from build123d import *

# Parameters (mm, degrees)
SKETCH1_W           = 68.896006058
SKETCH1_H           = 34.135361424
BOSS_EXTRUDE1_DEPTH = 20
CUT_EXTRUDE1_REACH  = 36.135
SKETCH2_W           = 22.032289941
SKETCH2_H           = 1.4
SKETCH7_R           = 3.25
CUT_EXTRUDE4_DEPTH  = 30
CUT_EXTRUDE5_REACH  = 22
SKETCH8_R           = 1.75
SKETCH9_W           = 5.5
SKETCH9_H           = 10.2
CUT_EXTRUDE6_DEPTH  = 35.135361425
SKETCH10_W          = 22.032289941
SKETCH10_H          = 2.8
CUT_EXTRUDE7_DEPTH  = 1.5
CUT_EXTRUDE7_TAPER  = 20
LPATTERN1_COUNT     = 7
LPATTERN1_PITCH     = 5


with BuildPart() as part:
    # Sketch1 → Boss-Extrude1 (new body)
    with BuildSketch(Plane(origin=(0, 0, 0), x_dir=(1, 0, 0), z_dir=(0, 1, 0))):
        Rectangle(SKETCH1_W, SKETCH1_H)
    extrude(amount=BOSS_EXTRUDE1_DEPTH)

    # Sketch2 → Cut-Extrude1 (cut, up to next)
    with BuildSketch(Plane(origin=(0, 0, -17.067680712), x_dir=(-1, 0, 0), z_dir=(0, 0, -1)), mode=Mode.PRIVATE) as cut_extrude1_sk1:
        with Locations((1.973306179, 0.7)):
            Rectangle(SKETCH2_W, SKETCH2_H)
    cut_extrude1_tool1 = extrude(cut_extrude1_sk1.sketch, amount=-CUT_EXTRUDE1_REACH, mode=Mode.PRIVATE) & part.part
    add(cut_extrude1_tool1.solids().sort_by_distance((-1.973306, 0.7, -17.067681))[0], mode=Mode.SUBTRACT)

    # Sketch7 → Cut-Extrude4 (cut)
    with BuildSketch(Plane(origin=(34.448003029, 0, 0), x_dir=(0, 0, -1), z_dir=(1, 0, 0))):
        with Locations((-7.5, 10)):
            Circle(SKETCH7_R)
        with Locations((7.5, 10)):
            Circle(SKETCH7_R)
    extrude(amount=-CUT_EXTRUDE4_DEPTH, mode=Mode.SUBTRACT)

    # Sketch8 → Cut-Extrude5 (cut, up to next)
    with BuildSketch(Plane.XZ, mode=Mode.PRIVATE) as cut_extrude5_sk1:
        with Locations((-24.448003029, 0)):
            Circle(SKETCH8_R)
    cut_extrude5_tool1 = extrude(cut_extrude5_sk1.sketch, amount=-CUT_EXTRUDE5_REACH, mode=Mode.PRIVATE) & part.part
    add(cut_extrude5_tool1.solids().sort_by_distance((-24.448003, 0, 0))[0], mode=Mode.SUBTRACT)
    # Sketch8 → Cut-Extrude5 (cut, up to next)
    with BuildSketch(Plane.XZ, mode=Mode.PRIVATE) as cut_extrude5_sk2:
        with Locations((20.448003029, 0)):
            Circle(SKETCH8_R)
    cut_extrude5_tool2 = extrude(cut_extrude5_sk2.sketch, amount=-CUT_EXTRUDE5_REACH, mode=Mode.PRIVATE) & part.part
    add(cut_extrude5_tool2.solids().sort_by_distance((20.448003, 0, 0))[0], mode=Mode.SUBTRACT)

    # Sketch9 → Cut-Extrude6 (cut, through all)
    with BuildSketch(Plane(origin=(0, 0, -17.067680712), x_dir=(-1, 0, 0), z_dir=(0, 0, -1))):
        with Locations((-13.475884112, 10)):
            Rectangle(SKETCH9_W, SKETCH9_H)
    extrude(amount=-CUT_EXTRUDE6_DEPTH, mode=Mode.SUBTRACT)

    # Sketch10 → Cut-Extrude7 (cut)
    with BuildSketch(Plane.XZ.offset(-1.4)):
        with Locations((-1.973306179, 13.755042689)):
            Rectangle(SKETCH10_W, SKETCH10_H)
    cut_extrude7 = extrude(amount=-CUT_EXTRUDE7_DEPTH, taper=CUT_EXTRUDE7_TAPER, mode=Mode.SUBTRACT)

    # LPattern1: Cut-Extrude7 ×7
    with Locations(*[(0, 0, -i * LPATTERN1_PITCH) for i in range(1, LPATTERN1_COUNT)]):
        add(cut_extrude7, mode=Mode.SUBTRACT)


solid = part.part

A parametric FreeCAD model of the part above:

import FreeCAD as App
import Part
import Sketcher


def add_polygon(sketch, points):
    """Adds a closed chain of lines whose ends are joined by coincident constraints."""
    first, n = sketch.GeometryCount, len(points)
    for a, b in zip(points, points[1:] + points[:1]):
        sketch.addGeometry(Part.LineSegment(App.Vector(*a, 0), App.Vector(*b, 0)), False)
    for i in range(n):
        sketch.addConstraint(Sketcher.Constraint("Coincident", first + i, 2, first + (i + 1) % n, 1))

doc = App.newDocument("Part")
body = doc.addObject("PartDesign::Body", "Body")

sketch1 = doc.addObject("Sketcher::SketchObject", "Sketch")
body.addObject(sketch1)
sketch1.AttachmentSupport = (doc.XZ_Plane, [""])
sketch1.MapMode = "FlatFace"
add_polygon(sketch1, [(-34, -17), (-34, 17), (34, 17), (34, -17)])
sketch1.addConstraint([
    Sketcher.Constraint("Vertical", 0),
    Sketcher.Constraint("Horizontal", 1),
    Sketcher.Constraint("Vertical", 2),
    Sketcher.Constraint("Horizontal", 3),
    Sketcher.Constraint("Symmetric", 0, 2, 2, 2, -1, 1),
    Sketcher.Constraint("DistanceY", 0, 1, 0, 2, 34.135361),
    Sketcher.Constraint("DistanceX", 1, 1, 1, 2, 68.896006),
])
pad1 = doc.addObject("PartDesign::Pad", "Pad")
body.addObject(pad1)
pad1.Profile = sketch1
pad1.Length = 20
pad1.Reversed = True

sketch2 = doc.addObject("Sketcher::SketchObject", "Sketch001")
body.addObject(sketch2)
sketch2.AttachmentSupport = (doc.XY_Plane, [""])
sketch2.MapMode = "FlatFace"
sketch2.AttachmentOffset = App.Placement(App.Vector(0, 0, -17.067681), App.Rotation())
add_polygon(sketch2, [(9, 1.4), (9, 0), (-13, 0), (-13, 1.4)])
sketch2.addConstraint([
    Sketcher.Constraint("Vertical", 0),
    Sketcher.Constraint("Horizontal", 1),
    Sketcher.Constraint("Vertical", 2),
    Sketcher.Constraint("Horizontal", 3),
    Sketcher.Constraint("PointOnObject", 0, 2, -1),
    Sketcher.Constraint("DistanceY", 0, 2, 0, 1, 1.4),
    Sketcher.Constraint("DistanceX", 1, 2, 1, 1, 22.03229),
    Sketcher.Constraint("DistanceX", -1, 1, 0, 2, 9.042839),
])
pocket1 = doc.addObject("PartDesign::Pocket", "Pocket")
body.addObject(pocket1)
pocket1.Profile = sketch2
pocket1.Type = "UpToFirst"
pocket1.Reversed = True

sketch3 = doc.addObject("Sketcher::SketchObject", "Sketch002")
body.addObject(sketch3)
sketch3.AttachmentSupport = (doc.YZ_Plane, [""])
sketch3.MapMode = "FlatFace"
sketch3.AttachmentOffset = App.Placement(App.Vector(0, 0, 34.448003), App.Rotation())
sketch3.addGeometry([
    Part.Circle(App.Vector(10, 7.5, 0), App.Vector(0, 0, 1), 3.2),
    Part.Circle(App.Vector(10, -7.5, 0), App.Vector(0, 0, 1), 3.2),
], False)
sketch3.addConstraint([
    Sketcher.Constraint("Equal", 0, 1),
    Sketcher.Constraint("Symmetric", 0, 3, 1, 3, -1),
    Sketcher.Constraint("Diameter", 0, 6.5),
    Sketcher.Constraint("DistanceX", -1, 1, 0, 3, 10.0),
    Sketcher.Constraint("DistanceY", 1, 3, 0, 3, 15.0),
])
pocket2 = doc.addObject("PartDesign::Pocket", "Pocket001")
body.addObject(pocket2)
pocket2.Profile = sketch3
pocket2.Length = 30

sketch4 = doc.addObject("Sketcher::SketchObject", "Sketch003")
body.addObject(sketch4)
sketch4.AttachmentSupport = (doc.XZ_Plane, [""])
sketch4.MapMode = "FlatFace"
sketch4.addGeometry(Part.Circle(App.Vector(-24.4, 0, 0), App.Vector(0, 0, 1), 1.8), False)
sketch4.addConstraint([
    Sketcher.Constraint("PointOnObject", 0, 3, -1),
    Sketcher.Constraint("Diameter", 0, 3.5),
    Sketcher.Constraint("DistanceX", 0, 3, -1, 1, 24.448003),
])
pocket3 = doc.addObject("PartDesign::Pocket", "Pocket002")
body.addObject(pocket3)
pocket3.Profile = sketch4
pocket3.Type = "UpToFirst"

sketch5 = doc.addObject("Sketcher::SketchObject", "Sketch004")
body.addObject(sketch5)
sketch5.AttachmentSupport = (doc.XZ_Plane, [""])
sketch5.MapMode = "FlatFace"
sketch5.addGeometry(Part.Circle(App.Vector(20.4, 0, 0), App.Vector(0, 0, 1), 1.8), False)
sketch5.addConstraint([
    Sketcher.Constraint("PointOnObject", 0, 3, -1),
    Sketcher.Constraint("Diameter", 0, 3.5),
    Sketcher.Constraint("DistanceX", -1, 1, 0, 3, 20.448003),
])
pocket4 = doc.addObject("PartDesign::Pocket", "Pocket003")
body.addObject(pocket4)
pocket4.Profile = sketch5
pocket4.Type = "UpToFirst"

sketch6 = doc.addObject("Sketcher::SketchObject", "Sketch005")
body.addObject(sketch6)
sketch6.AttachmentSupport = (doc.XY_Plane, [""])
sketch6.MapMode = "FlatFace"
sketch6.AttachmentOffset = App.Placement(App.Vector(0, 0, -17.067681), App.Rotation())
add_polygon(sketch6, [(16, 15), (16, 5), (11, 5), (11, 15)])
sketch6.addConstraint([
    Sketcher.Constraint("Vertical", 0),
    Sketcher.Constraint("Horizontal", 1),
    Sketcher.Constraint("Vertical", 2),
    Sketcher.Constraint("Horizontal", 3),
    Sketcher.Constraint("DistanceX", 1, 2, 1, 1, 5.5),
    Sketcher.Constraint("DistanceY", 0, 2, 0, 1, 10.2),
    Sketcher.Constraint("DistanceY", -1, 1, 0, 2, 4.9),
    Sketcher.Constraint("DistanceX", -1, 1, 0, 2, 16.225884),
])
pocket5 = doc.addObject("PartDesign::Pocket", "Pocket004")
body.addObject(pocket5)
pocket5.Profile = sketch6
pocket5.Type = "ThroughAll"
pocket5.Reversed = True

sketch7 = doc.addObject("Sketcher::SketchObject", "Sketch006")
body.addObject(sketch7)
sketch7.AttachmentSupport = (doc.XZ_Plane, [""])
sketch7.MapMode = "FlatFace"
sketch7.AttachmentOffset = App.Placement(App.Vector(0, 0, -1.4), App.Rotation())
add_polygon(sketch7, [(-13, 15.2), (-13, 12.4), (9, 12.4), (9, 15.2)])
sketch7.addConstraint([
    Sketcher.Constraint("Vertical", 0),
    Sketcher.Constraint("Horizontal", 1),
    Sketcher.Constraint("Vertical", 2),
    Sketcher.Constraint("Horizontal", 3),
    Sketcher.Constraint("DistanceY", 0, 2, 0, 1, 2.8),
    Sketcher.Constraint("DistanceX", 1, 1, 1, 2, 22.03229),
    Sketcher.Constraint("DistanceX", 0, 2, -1, 1, 12.989451),
    Sketcher.Constraint("DistanceY", -1, 1, 0, 2, 12.355043),
])
pocket6 = doc.addObject("PartDesign::Pocket", "Pocket005")
body.addObject(pocket6)
pocket6.Profile = sketch7
pocket6.Length = 1.5
pocket6.TaperAngle = -20
doc.recompute()

linearpattern = doc.addObject("PartDesign::LinearPattern", "LinearPattern")
body.addObject(linearpattern)
linearpattern.Originals = [pocket6]
linearpattern.Direction = (doc.Z_Axis, [""])
linearpattern.Mode = "offset"
linearpattern.Offset = 5
linearpattern.Occurrences = 7
linearpattern.Reversed = True
body.Tip = linearpattern

doc.recompute()
